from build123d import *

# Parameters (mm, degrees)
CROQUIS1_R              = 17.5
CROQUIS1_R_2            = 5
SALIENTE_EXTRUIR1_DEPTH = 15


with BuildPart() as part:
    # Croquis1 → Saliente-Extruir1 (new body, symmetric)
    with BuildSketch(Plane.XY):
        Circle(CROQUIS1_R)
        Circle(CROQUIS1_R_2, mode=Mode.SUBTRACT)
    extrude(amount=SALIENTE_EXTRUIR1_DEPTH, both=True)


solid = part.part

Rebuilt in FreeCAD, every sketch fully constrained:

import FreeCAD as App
import Part
import Sketcher

V = App.Vector

doc = App.newDocument("Part")
body = doc.addObject("PartDesign::Body", "Body")

# Sketch on XY plane
sketch1 = doc.addObject("Sketcher::SketchObject", "Sketch")
body.addObject(sketch1)
sketch1.AttachmentSupport = (doc.XY_Plane, [""])
sketch1.MapMode = "FlatFace"
sketch1.addGeometry(Part.Circle(V(0, 0, 0), V(0, 0, 1), 18), False)
sketch1.addGeometry(Part.Circle(V(0, 0, 0), V(0, 0, 1), 5), False)
sketch1.addConstraint(Sketcher.Constraint("Coincident", 0, 3, -1, 1))
sketch1.addConstraint(Sketcher.Constraint("Coincident", 1, 3, -1, 1))
sketch1.addConstraint(Sketcher.Constraint("Diameter", 0, 35.0))
sketch1.addConstraint(Sketcher.Constraint("Diameter", 1, 10.0))
pad1 = doc.addObject("PartDesign::Pad", "Pad")
body.addObject(pad1)
pad1.Profile = sketch1
pad1.Length = 30
pad1.Midplane = True

doc.recompute()
